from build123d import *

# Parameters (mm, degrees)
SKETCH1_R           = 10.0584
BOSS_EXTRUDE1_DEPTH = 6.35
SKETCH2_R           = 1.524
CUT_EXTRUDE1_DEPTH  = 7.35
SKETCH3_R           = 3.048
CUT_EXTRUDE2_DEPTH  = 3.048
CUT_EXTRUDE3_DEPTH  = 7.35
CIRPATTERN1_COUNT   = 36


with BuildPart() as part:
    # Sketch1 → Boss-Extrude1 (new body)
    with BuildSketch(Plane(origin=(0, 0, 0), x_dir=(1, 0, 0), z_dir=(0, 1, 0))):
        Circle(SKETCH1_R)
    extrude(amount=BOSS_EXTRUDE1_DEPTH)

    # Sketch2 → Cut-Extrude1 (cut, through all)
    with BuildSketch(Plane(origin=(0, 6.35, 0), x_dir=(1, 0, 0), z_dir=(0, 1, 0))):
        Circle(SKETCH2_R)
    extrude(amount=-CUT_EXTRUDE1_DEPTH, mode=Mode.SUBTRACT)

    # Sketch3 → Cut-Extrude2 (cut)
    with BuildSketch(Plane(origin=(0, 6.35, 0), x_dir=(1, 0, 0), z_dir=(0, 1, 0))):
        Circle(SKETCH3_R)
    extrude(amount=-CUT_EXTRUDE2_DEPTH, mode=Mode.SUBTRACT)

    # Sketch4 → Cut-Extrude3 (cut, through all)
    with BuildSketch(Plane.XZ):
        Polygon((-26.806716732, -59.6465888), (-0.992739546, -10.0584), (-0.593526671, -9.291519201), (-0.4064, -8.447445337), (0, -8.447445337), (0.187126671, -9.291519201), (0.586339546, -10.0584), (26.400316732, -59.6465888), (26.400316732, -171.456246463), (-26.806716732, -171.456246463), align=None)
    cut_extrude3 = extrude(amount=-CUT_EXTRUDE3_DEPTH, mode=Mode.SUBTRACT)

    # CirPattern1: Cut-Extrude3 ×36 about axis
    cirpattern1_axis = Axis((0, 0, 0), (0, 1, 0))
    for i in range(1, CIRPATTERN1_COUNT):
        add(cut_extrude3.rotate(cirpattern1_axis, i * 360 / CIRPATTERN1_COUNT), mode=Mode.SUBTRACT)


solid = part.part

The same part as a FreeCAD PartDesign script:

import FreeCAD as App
import Part
import Sketcher
Q = App.Units.Quantity

doc = App.newDocument("Part")
body = doc.addObject("PartDesign::Body", "Body")

# Sketch on XZ plane
sketch1 = body.newObject("Sketcher::SketchObject", "Sketch")
sketch1.AttachmentSupport = (doc.getObject("XZ_Plane"), [""])
sketch1.MapMode = "FlatFace"
sketch1.addGeometry(Part.Circle(App.Vector(0, 0, 0), App.Vector(0, 0, 1), 10), False)
sketch1.addConstraint(Sketcher.Constraint("Coincident", 0, 3, -1, 1))
sketch1.addConstraint(Sketcher.Constraint("Diameter", 0, Q("0.792 in")))
pad1 = body.newObject("PartDesign::Pad", "Pad")
pad1.Profile = sketch1
pad1.Length = Q("0.25 in")
pad1.Reversed = True

# Sketch on XZ plane
sketch2 = body.newObject("Sketcher::SketchObject", "Sketch001")
sketch2.AttachmentSupport = (doc.getObject("XZ_Plane"), [""])
sketch2.MapMode = "FlatFace"
sketch2.AttachmentOffset = App.Placement(App.Vector(0, 0, -0.25 * 25.4), App.Rotation())
sketch2.addGeometry(Part.Circle(App.Vector(0, 0, 0), App.Vector(0, 0, 1), 1.5), False)
sketch2.addConstraint(Sketcher.Constraint("Coincident", 0, 3, -1, 1))
sketch2.addConstraint(Sketcher.Constraint("Diameter", 0, Q("0.12 in")))
pocket1 = body.newObject("PartDesign::Pocket", "Pocket")
pocket1.Profile = sketch2
pocket1.Type = "ThroughAll"
pocket1.Reversed = True

# Sketch on XZ plane
sketch3 = body.newObject("Sketcher::SketchObject", "Sketch002")
sketch3.AttachmentSupport = (doc.getObject("XZ_Plane"), [""])
sketch3.MapMode = "FlatFace"
sketch3.AttachmentOffset = App.Placement(App.Vector(0, 0, -0.25 * 25.4), App.Rotation())
sketch3.addGeometry(Part.Circle(App.Vector(0, 0, 0), App.Vector(0, 0, 1), 3), False)
sketch3.addConstraint(Sketcher.Constraint("Coincident", 0, 3, -1, 1))
sketch3.addConstraint(Sketcher.Constraint("Diameter", 0, Q("0.24 in")))
pocket2 = body.newObject("PartDesign::Pocket", "Pocket001")
pocket2.Profile = sketch3
pocket2.Length = Q("0.12 in")
pocket2.Reversed = True

# Sketch on XZ plane
sketch4 = body.newObject("Sketcher::SketchObject", "Sketch003")
sketch4.AttachmentSupport = (doc.getObject("XZ_Plane"), [""])
sketch4.MapMode = "FlatFace"
sketch4.addGeometry(Part.LineSegment(App.Vector(-0.99, -10.06, 0), App.Vector(-26.81, -59.65, 0)), False)
sketch4.addGeometry(Part.LineSegment(App.Vector(-26.81, -59.65, 0), App.Vector(-26.81, -171.46, 0)), False)
sketch4.addGeometry(Part.LineSegment(App.Vector(-26.81, -171.46, 0), App.Vector(26.4, -171.46, 0)), False)
sketch4.addGeometry(Part.LineSegment(App.Vector(26.4, -171.46, 0), App.Vector(26.4, -59.65, 0)), False)
sketch4.addGeometry(Part.LineSegment(App.Vector(26.4, -59.65, 0), App.Vector(0.59, -10.06, 0)), False)
sketch4.addGeometry(Part.LineSegment(App.Vector(0.59, -10.06, 0), App.Vector(0.19, -9.29, 0)), False)
sketch4.addGeometry(Part.LineSegment(App.Vector(0.19, -9.29, 0), App.Vector(0, -8.45, 0)), False)
sketch4.addGeometry(Part.LineSegment(App.Vector(0, -8.45, 0), App.Vector(-0.41, -8.45, 0)), False)
sketch4.addGeometry(Part.LineSegment(App.Vector(-0.41, -8.45, 0), App.Vector(-0.59, -9.29, 0)), False)
sketch4.addGeometry(Part.LineSegment(App.Vector(-0.59, -9.29, 0), App.Vector(-0.99, -10.06, 0)), False)
sketch4.addConstraint(Sketcher.Constraint("Coincident", 0, 2, 1, 1))
sketch4.addConstraint(Sketcher.Constraint("Coincident", 1, 2, 2, 1))
sketch4.addConstraint(Sketcher.Constraint("Coincident", 2, 2, 3, 1))
sketch4.addConstraint(Sketcher.Constraint("Coincident", 3, 2, 4, 1))
sketch4.addConstraint(Sketcher.Constraint("Coincident", 4, 2, 5, 1))
sketch4.addConstraint(Sketcher.Constraint("Coincident", 5, 2, 6, 1))
sketch4.addConstraint(Sketcher.Constraint("Coincident", 6, 2, 7, 1))
sketch4.addConstraint(Sketcher.Constraint("Coincident", 7, 2, 8, 1))
sketch4.addConstraint(Sketcher.Constraint("Coincident", 8, 2, 9, 1))
sketch4.addConstraint(Sketcher.Constraint("Coincident", 9, 2, 0, 1))
sketch4.addConstraint(Sketcher.Constraint("Vertical", 1))
sketch4.addConstraint(Sketcher.Constraint("Horizontal", 2))
sketch4.addConstraint(Sketcher.Constraint("Vertical", 3))
sketch4.addConstraint(Sketcher.Constraint("Horizontal", 7))
sketch4.addConstraint(Sketcher.Constraint("PointOnObject", 6, 2, -2))
sketch4.addConstraint(Sketcher.Constraint("Parallel", 4, 5))
sketch4.addConstraint(Sketcher.Constraint("Parallel", 0, 9))
sketch4.addConstraint(Sketcher.Constraint("Horizontal", 0, 2, 3, 2))
sketch4.addConstraint(Sketcher.Constraint("Horizontal", 5, 2, 8, 2))
sketch4.addConstraint(Sketcher.Constraint("Horizontal", 4, 2, 9, 2))
sketch4.addConstraint(Sketcher.Constraint("Equal", 0, 4))
sketch4.addConstraint(Sketcher.Constraint("Equal", 5, 6))
sketch4.addConstraint(Sketcher.Constraint("Equal", 6, 8))
sketch4.addConstraint(Sketcher.Constraint("Angle", 0, Q("-117.5 deg")))
sketch4.addConstraint(Sketcher.Constraint("Angle", 6, Q("102.5 deg")))
sketch4.addConstraint(Sketcher.Constraint("DistanceX", 7, 2, 7, 1, Q("0.016 in")))
sketch4.addConstraint(Sketcher.Constraint("DistanceY", 4, 2, -1, 1, Q("0.396 in")))
sketch4.addConstraint(Sketcher.Constraint("DistanceY", 2, 2, 6, 2, Q("163.008801 mm")))
sketch4.addConstraint(Sketcher.Constraint("Distance", 0, Q("55.904829 mm")))
sketch4.addConstraint(Sketcher.Constraint("DistanceX", 2, 1, 2, 2, Q("53.207033 mm")))
pocket3 = body.newObject("PartDesign::Pocket", "Pocket002")
pocket3.Profile = sketch4
pocket3.Type = "ThroughAll"
doc.recompute()

polarpattern = body.newObject("PartDesign::PolarPattern", "PolarPattern")
polarpattern.Originals = [pocket3]
polarpattern.Axis = (doc.getObject("Y_Axis"), [""])
polarpattern.Angle = 360
polarpattern.Occurrences = 36
body.Tip = polarpattern

doc.recompute()
